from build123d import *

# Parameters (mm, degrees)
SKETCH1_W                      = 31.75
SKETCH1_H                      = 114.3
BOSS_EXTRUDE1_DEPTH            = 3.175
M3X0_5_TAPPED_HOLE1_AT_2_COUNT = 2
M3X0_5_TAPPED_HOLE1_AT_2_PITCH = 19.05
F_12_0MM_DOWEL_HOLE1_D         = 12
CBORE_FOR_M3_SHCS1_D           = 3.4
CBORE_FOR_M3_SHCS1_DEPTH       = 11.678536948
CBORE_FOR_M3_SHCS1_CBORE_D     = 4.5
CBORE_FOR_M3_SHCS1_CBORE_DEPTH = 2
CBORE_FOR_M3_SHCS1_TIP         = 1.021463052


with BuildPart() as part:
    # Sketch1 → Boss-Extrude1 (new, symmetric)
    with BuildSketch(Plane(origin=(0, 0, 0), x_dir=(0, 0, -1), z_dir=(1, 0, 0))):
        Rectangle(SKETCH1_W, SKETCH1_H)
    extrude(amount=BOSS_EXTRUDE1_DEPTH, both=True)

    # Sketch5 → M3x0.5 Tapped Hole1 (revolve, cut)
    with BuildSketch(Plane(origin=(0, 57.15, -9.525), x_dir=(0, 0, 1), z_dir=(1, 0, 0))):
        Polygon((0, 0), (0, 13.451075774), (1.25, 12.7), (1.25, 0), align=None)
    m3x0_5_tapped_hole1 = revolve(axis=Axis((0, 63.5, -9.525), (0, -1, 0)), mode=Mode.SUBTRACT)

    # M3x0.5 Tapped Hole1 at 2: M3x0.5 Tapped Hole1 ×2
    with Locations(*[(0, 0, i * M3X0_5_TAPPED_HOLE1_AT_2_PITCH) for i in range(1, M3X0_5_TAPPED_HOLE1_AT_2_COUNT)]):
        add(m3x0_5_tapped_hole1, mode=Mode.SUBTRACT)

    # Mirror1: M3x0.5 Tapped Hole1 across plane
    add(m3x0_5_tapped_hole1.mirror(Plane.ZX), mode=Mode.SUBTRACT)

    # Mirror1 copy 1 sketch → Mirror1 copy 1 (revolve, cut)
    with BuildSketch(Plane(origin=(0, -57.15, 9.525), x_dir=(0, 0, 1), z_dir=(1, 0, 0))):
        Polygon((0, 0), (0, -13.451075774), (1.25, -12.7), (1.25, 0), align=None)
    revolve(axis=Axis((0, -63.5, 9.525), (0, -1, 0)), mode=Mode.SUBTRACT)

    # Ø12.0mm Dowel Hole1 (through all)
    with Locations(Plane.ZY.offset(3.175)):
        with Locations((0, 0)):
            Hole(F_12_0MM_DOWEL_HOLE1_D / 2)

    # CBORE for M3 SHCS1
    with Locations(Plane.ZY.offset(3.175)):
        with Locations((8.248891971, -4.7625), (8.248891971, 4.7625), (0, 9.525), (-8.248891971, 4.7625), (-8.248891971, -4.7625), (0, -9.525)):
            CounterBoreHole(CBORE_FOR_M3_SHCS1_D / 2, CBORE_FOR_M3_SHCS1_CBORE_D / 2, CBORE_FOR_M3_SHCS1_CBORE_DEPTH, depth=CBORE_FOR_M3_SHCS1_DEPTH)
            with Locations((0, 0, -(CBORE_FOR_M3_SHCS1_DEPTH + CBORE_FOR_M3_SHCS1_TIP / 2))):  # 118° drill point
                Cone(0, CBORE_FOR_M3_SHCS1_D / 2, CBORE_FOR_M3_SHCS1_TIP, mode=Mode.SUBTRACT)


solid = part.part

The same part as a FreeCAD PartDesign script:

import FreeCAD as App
import Part
import Sketcher
Q = App.Units.Quantity


def add_polygon(sketch, points):
    """Adds a closed chain of lines whose ends are joined by coincident constraints."""
    first, n = sketch.GeometryCount, len(points)
    for a, b in zip(points, points[1:] + points[:1]):
        sketch.addGeometry(Part.LineSegment(App.Vector(*a, 0), App.Vector(*b, 0)), False)
    for i in range(n):
        sketch.addConstraint(Sketcher.Constraint("Coincident", first + i, 2, first + (i + 1) % n, 1))

doc = App.newDocument("Part")
body = doc.addObject("PartDesign::Body", "Body")

# Sketch on YZ plane
sketch1 = body.newObject("Sketcher::SketchObject", "Sketch")
sketch1.AttachmentSupport = (doc.getObject("YZ_Plane"), [""])
sketch1.MapMode = "FlatFace"
add_polygon(sketch1, [(57, 16), (-57, 16), (-57, -16), (57, -16)])  # lines 0-3
sketch1.addConstraint([
    Sketcher.Constraint("Horizontal", 0),
    Sketcher.Constraint("Vertical", 1),
    Sketcher.Constraint("Horizontal", 2),
    Sketcher.Constraint("Vertical", 3),
    Sketcher.Constraint("Symmetric", 0, 2, 2, 2, -1, 1),
    Sketcher.Constraint("DistanceX", 0, 2, 0, 1, Q("4.5 in")),
    Sketcher.Constraint("DistanceY", 1, 2, 1, 1, Q("1.25 in")),
])
pad1 = body.newObject("PartDesign::Pad", "Pad")
pad1.Profile = sketch1
pad1.Length = Q("0.25 in")
pad1.Midplane = True

# Sketch on YZ plane
sketch2 = body.newObject("Sketcher::SketchObject", "Sketch001")
sketch2.AttachmentSupport = (doc.getObject("YZ_Plane"), [""])
sketch2.MapMode = "FlatFace"
add_polygon(sketch2, [(43.7, -9.5), (57.1, -9.5), (57.1, -8.3), (44.5, -8.3)])  # lines 0-3
sketch2.addGeometry(Part.LineSegment(App.Vector(57.1, -9.5, 0), App.Vector(43.7, -9.5, 0)), True)  # axis
sketch2.addConstraint([
    Sketcher.Constraint("Horizontal", 0),
    Sketcher.Constraint("Vertical", 1),
    Sketcher.Constraint("Horizontal", 2),
    Sketcher.Constraint("Horizontal", 4),
    Sketcher.Constraint("Coincident", 4, 1, 0, 2),
    Sketcher.Constraint("Equal", 0, 4),
    Sketcher.Constraint("DistanceX", 2, 2, 2, 1, Q("0.5 in")),
    Sketcher.Constraint("Angle", 3, Q("-121 deg")),
    Sketcher.Constraint("DistanceX", -1, 1, 0, 2, Q("2.25 in")),
    Sketcher.Constraint("DistanceY", 0, 2, -1, 1, Q("0.375 in")),
    Sketcher.Constraint("DistanceY", 1, 1, 1, 2, Q("1.25 mm")),
])
groove = body.newObject("PartDesign::Groove", "Groove")
groove.Profile = sketch2
groove.ReferenceAxis = (sketch2, ["Axis0"])
groove.Angle = 360
doc.recompute()

linearpattern = body.newObject("PartDesign::LinearPattern", "LinearPattern")
linearpattern.Originals = [groove]
linearpattern.Direction = (doc.getObject("Z_Axis"), [""])
linearpattern.Mode = "offset"
linearpattern.Offset = Q("0.75 in")
linearpattern.Occurrences = 2
body.Tip = linearpattern
doc.recompute()

mirrored = body.newObject("PartDesign::Mirrored", "Mirrored")
mirrored.Originals = [groove]
mirrored.MirrorPlane = (doc.getObject("XZ_Plane"), [""])
body.Tip = mirrored

# Sketch on YZ plane
sketch3 = body.newObject("Sketcher::SketchObject", "Sketch002")
sketch3.AttachmentSupport = (doc.getObject("YZ_Plane"), [""])
sketch3.MapMode = "FlatFace"
add_polygon(sketch3, [(-57.1, 9.5), (-43.7, 9.5), (-44.5, 10.8), (-57.1, 10.8)])  # lines 0-3
sketch3.addGeometry(Part.LineSegment(App.Vector(-43.7, 9.5, 0), App.Vector(-57.1, 9.5, 0)), True)  # axis
sketch3.addConstraint([
    Sketcher.Constraint("Horizontal", 0),
    Sketcher.Constraint("Horizontal", 2),
    Sketcher.Constraint("Vertical", 3),
    Sketcher.Constraint("Horizontal", 4),
    Sketcher.Constraint("Coincident", 4, 1, 0, 2),
    Sketcher.Constraint("Vertical", 2, 2, 4, 2),
    Sketcher.Constraint("DistanceX", 2, 2, 2, 1, Q("0.5 in")),
    Sketcher.Constraint("Angle", 1, Q("121 deg")),
    Sketcher.Constraint("DistanceX", 1, 2, -1, 1, Q("1.75 in")),
    Sketcher.Constraint("DistanceY", -1, 1, 0, 2, Q("0.375 in")),
    Sketcher.Constraint("DistanceY", 3, 2, 3, 1, Q("1.25 mm")),
])
groove2 = body.newObject("PartDesign::Groove", "Groove001")
groove2.Profile = sketch3
groove2.ReferenceAxis = (sketch3, ["Axis0"])
groove2.Angle = 360

# Sketch on YZ plane
sketch4 = body.newObject("Sketcher::SketchObject", "Sketch003")
sketch4.AttachmentSupport = (doc.getObject("YZ_Plane"), [""])
sketch4.MapMode = "FlatFace"
sketch4.AttachmentOffset = App.Placement(App.Vector(0, 0, -0.125 * 25.4), App.Rotation())
sketch4.addGeometry(Part.Circle(App.Vector(0, 0, 0), App.Vector(0, 0, 1), 6), False)
sketch4.addConstraint([
    Sketcher.Constraint("Coincident", 0, 3, -1, 1),
    Sketcher.Constraint("Diameter", 0, Q("12 mm")),
])
doc.recompute()
hole = body.newObject("PartDesign::Hole", "Hole")
hole.Profile = sketch4
hole.ThreadType = "None"
hole.Diameter = 12
hole.DepthType = "ThroughAll"
hole.Reversed = True

# Sketch on YZ plane
sketch5 = body.newObject("Sketcher::SketchObject", "Sketch004")
sketch5.AttachmentSupport = (doc.getObject("YZ_Plane"), [""])
sketch5.MapMode = "FlatFace"
sketch5.AttachmentOffset = App.Placement(App.Vector(0, 0, -0.125 * 25.4), App.Rotation())
sketch5.addGeometry([
    Part.Circle(App.Vector(-4.8, 8.2, 0), App.Vector(0, 0, 1), 1.7),  # 0
    Part.Circle(App.Vector(4.8, 8.2, 0), App.Vector(0, 0, 1), 1.7),  # 1
    Part.Circle(App.Vector(9.5, 0, 0), App.Vector(0, 0, 1), 1.7),  # 2
    Part.Circle(App.Vector(4.8, -8.2, 0), App.Vector(0, 0, 1), 1.7),  # 3
    Part.Circle(App.Vector(-4.8, -8.2, 0), App.Vector(0, 0, 1), 1.7),  # 4
    Part.Circle(App.Vector(-9.5, 0, 0), App.Vector(0, 0, 1), 1.7),  # 5
], False)
sketch5.addConstraint([
    Sketcher.Constraint("Equal", 0, 1),
    Sketcher.Constraint("Equal", 1, 2),
    Sketcher.Constraint("Equal", 2, 3),
    Sketcher.Constraint("Equal", 3, 4),
    Sketcher.Constraint("Equal", 4, 5),
    Sketcher.Constraint("Symmetric", 0, 3, 3, 3, -1, 1),
    Sketcher.Constraint("Symmetric", 1, 3, 4, 3, -1, 1),
    Sketcher.Constraint("Symmetric", 2, 3, 5, 3, -1, 1),
    Sketcher.Constraint("Symmetric", 0, 3, 1, 3, -2),
    Sketcher.Constraint("PointOnObject", 2, 3, -1),
    Sketcher.Constraint("Diameter", 0, Q("3.4 mm")),
    Sketcher.Constraint("DistanceX", 5, 3, 2, 3, Q("0.75 in")),
    Sketcher.Constraint("DistanceX", 0, 3, -1, 1, Q("0.1875 in")),
    Sketcher.Constraint("DistanceY", -1, 1, 0, 3, Q("8.248892 mm")),
])
doc.recompute()
hole2 = body.newObject("PartDesign::Hole", "Hole001")
hole2.Profile = sketch5
hole2.ThreadType = "None"
hole2.Diameter = 3.4
hole2.DepthType = "Dimension"
hole2.Depth = 11.678537
hole2.DrillPoint = "Angled"
hole2.DrillPointAngle = 118
hole2.HoleCutType = "Counterbore"
hole2.HoleCutDiameter = 4.5
hole2.HoleCutDepth = 2
hole2.Reversed = True

doc.recompute()
